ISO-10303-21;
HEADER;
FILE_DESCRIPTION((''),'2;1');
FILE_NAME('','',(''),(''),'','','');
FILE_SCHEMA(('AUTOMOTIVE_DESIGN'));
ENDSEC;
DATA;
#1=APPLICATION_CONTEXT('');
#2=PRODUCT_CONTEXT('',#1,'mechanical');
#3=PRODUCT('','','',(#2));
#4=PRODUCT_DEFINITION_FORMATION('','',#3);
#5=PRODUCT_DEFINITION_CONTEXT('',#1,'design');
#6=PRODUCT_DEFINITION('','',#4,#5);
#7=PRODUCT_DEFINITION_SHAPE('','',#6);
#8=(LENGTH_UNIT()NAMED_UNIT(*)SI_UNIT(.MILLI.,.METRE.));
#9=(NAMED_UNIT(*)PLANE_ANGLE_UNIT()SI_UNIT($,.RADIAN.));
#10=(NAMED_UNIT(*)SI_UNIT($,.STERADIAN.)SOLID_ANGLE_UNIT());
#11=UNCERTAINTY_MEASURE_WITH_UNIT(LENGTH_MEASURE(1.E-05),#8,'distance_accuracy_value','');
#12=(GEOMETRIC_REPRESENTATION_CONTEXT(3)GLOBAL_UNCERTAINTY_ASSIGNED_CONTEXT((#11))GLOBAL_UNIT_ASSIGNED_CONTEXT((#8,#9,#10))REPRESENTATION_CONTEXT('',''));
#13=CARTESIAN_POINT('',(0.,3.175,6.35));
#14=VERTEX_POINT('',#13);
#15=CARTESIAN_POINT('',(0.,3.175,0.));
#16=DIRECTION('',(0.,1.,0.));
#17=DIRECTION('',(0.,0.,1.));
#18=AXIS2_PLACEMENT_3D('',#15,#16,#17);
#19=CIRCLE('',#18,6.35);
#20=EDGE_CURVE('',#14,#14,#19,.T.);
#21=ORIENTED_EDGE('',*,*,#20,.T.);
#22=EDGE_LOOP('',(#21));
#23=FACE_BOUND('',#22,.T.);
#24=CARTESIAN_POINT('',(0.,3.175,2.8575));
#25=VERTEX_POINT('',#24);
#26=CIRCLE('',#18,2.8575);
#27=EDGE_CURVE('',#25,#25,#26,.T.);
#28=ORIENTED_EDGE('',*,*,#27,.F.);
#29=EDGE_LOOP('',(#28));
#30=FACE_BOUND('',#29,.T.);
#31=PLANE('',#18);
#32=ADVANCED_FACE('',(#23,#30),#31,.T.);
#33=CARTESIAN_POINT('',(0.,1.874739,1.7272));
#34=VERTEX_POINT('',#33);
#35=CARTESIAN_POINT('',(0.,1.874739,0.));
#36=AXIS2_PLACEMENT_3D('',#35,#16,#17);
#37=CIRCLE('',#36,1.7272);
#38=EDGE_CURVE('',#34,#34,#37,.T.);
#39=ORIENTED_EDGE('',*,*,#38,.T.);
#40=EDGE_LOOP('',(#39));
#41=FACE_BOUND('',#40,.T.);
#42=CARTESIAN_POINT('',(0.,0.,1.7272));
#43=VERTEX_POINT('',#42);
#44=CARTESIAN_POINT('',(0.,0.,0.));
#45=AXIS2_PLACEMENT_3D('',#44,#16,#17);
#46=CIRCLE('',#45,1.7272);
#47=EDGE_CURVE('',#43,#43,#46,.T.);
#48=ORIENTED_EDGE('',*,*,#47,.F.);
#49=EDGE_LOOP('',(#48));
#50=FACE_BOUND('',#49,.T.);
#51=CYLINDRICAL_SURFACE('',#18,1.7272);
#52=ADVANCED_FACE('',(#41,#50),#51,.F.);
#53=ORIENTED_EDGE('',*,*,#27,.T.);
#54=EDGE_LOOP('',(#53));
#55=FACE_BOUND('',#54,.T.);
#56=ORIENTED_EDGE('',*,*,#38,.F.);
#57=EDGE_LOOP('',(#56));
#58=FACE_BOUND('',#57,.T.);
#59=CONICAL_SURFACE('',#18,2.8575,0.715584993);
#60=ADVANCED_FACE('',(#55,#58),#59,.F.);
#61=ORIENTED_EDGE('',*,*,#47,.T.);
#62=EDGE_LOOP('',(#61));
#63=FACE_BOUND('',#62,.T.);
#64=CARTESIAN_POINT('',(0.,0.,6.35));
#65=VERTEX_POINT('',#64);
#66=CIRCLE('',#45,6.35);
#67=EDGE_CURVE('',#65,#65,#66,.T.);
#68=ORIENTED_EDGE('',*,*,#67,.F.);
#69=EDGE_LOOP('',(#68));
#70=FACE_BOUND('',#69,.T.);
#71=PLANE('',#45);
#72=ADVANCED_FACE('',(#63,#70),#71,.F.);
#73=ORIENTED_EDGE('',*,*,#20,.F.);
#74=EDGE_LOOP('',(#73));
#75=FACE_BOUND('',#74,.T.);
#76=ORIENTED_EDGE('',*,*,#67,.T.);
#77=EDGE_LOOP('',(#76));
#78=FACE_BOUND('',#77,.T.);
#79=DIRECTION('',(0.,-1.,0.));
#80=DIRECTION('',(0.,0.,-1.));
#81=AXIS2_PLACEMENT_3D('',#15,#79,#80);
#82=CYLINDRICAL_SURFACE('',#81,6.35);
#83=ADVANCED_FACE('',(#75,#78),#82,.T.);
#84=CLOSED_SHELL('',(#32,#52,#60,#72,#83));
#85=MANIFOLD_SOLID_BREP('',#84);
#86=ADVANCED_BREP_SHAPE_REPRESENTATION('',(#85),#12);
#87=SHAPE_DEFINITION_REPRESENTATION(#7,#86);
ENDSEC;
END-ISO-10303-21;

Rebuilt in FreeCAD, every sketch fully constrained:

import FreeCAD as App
import Part
import Sketcher
Q = App.Units.Quantity

doc = App.newDocument("Part")
body = doc.addObject("PartDesign::Body", "Body")

sketch1 = body.newObject("Sketcher::SketchObject", "Sketch")
sketch1.AttachmentSupport = (doc.getObject("XZ_Plane"), [""])
sketch1.MapMode = "FlatFace"
sketch1.addGeometry(Part.Circle(App.Vector(0, 0, 0), App.Vector(0, 0, 1), 6), False)
sketch1.addConstraint([
    Sketcher.Constraint("Coincident", 0, 3, -1, 1),
    Sketcher.Constraint("Diameter", 0, Q("0.5 in")),
])
pad1 = body.newObject("PartDesign::Pad", "Pad")
pad1.Profile = sketch1
pad1.Length = Q("0.125 in")
pad1.Reversed = True

sketch2 = body.newObject("Sketcher::SketchObject", "Sketch001")
sketch2.AttachmentSupport = (doc.getObject("YZ_Plane"), [""])
sketch2.MapMode = "FlatFace"
sketch2.addGeometry([
    Part.LineSegment(App.Vector(0, 0, 0), App.Vector(3.2, 0, 0)),
    Part.LineSegment(App.Vector(3.2, 0, 0), App.Vector(3.2, 2.9, 0)),
    Part.LineSegment(App.Vector(3.2, 2.9, 0), App.Vector(1.9, 1.7, 0)),
    Part.LineSegment(App.Vector(1.9, 1.7, 0), App.Vector(0, 1.7, 0)),
    Part.LineSegment(App.Vector(0, 1.7, 0), App.Vector(0, 0, 0)),
], False)
sketch2.addConstraint([
    Sketcher.Constraint("Coincident", 0, 2, 1, 1),
    Sketcher.Constraint("Coincident", 1, 2, 2, 1),
    Sketcher.Constraint("Coincident", 2, 2, 3, 1),
    Sketcher.Constraint("Coincident", 3, 2, 4, 1),
    Sketcher.Constraint("Coincident", 4, 2, 0, 1),
    Sketcher.Constraint("Horizontal", 0),
    Sketcher.Constraint("Vertical", 1),
    Sketcher.Constraint("Horizontal", 3),
    Sketcher.Constraint("Vertical", 4),
    Sketcher.Constraint("Coincident", 4, 2, -1, 1),
    Sketcher.Constraint("Angle", 2, Q("-139 deg")),
    Sketcher.Constraint("DistanceX", 0, 1, 0, 2, Q("0.125 in")),
    Sketcher.Constraint("DistanceY", 4, 2, 4, 1, Q("0.068 in")),
    Sketcher.Constraint("DistanceY", 1, 1, 1, 2, Q("0.1125 in")),
])
groove = body.newObject("PartDesign::Groove", "Groove")
groove.Profile = sketch2
groove.ReferenceAxis = (sketch2, ["H_Axis"])
groove.Angle = 360

doc.recompute()
